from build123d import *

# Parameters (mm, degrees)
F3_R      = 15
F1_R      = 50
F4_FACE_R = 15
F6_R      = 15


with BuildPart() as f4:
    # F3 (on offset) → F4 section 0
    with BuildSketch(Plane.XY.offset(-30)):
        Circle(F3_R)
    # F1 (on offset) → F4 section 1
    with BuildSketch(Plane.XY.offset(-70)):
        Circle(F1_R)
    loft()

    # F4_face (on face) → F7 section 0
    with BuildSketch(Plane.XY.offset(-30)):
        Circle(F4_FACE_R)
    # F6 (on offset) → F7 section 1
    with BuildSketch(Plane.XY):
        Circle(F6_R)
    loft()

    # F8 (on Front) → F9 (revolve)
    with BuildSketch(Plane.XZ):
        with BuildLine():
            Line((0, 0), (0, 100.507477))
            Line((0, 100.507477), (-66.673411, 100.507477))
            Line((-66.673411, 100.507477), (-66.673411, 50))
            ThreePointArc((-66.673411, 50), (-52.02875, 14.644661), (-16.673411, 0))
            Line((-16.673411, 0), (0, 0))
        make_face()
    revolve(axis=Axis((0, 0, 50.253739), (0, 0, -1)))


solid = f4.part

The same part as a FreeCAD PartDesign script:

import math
import FreeCAD as App
import Part
import Sketcher
Q = App.Units.Quantity

doc = App.newDocument("Part")
params = doc.addObject("Spreadsheet::Sheet", "Params")
for row, (alias, value) in enumerate([
    ("sketch1_diameter", "30 mm"),
    ("sketch2_diameter", "100 mm"),
    ("sketch3_diameter", "30 mm"),
    ("sketch4_diameter", "30 mm"),
    ("sketch5_radius", "50 mm"),
    ("revolution_angle", "360 deg"),
], start=1):
    params.set(f"A{row}", alias)
    params.set(f"B{row}", "=" + value)
    params.setAlias(f"B{row}", alias)

body = doc.addObject("PartDesign::Body", "Body")

# Sketch on XY plane
sketch1 = doc.addObject("Sketcher::SketchObject", "Sketch")
body.addObject(sketch1)
sketch1.AttachmentSupport = (doc.XY_Plane, [""])
sketch1.MapMode = "FlatFace"
sketch1.AttachmentOffset = App.Placement(App.Vector(0, 0, -30), App.Rotation())
sketch1.addGeometry(Part.Circle(App.Vector(0, 0, 0), App.Vector(0, 0, 1), 15), False)
sketch1.addConstraint([
    Sketcher.Constraint("Coincident", 0, 3, -1, 1),
    Sketcher.Constraint("Diameter", 0, Q("30 mm")),
])
sketch1.setExpression("Constraints[1]", "Params.sketch1_diameter")

# Sketch on XY plane
sketch2 = doc.addObject("Sketcher::SketchObject", "Sketch001")
body.addObject(sketch2)
sketch2.AttachmentSupport = (doc.XY_Plane, [""])
sketch2.MapMode = "FlatFace"
sketch2.AttachmentOffset = App.Placement(App.Vector(0, 0, -70), App.Rotation())
sketch2.addGeometry(Part.Circle(App.Vector(0, 0, 0), App.Vector(0, 0, 1), 50), False)
sketch2.addConstraint([
    Sketcher.Constraint("Coincident", 0, 3, -1, 1),
    Sketcher.Constraint("Diameter", 0, Q("100 mm")),
])
sketch2.setExpression("Constraints[1]", "Params.sketch2_diameter")

additiveloft = doc.addObject("PartDesign::AdditiveLoft", "AdditiveLoft")
body.addObject(additiveloft)
additiveloft.Profile = sketch1
additiveloft.Sections = [sketch2]

# Sketch on XY plane
sketch3 = doc.addObject("Sketcher::SketchObject", "Sketch002")
body.addObject(sketch3)
sketch3.AttachmentSupport = (doc.XY_Plane, [""])
sketch3.MapMode = "FlatFace"
sketch3.AttachmentOffset = App.Placement(App.Vector(0, 0, -30), App.Rotation())
sketch3.addGeometry(Part.Circle(App.Vector(0, 0, 0), App.Vector(0, 0, 1), 15), False)
sketch3.addConstraint([
    Sketcher.Constraint("Coincident", 0, 3, -1, 1),
    Sketcher.Constraint("Diameter", 0, Q("30 mm")),
])
sketch3.setExpression("Constraints[1]", "Params.sketch3_diameter")

# Sketch on XY plane
sketch4 = doc.addObject("Sketcher::SketchObject", "Sketch003")
body.addObject(sketch4)
sketch4.AttachmentSupport = (doc.XY_Plane, [""])
sketch4.MapMode = "FlatFace"
sketch4.addGeometry(Part.Circle(App.Vector(0, 0, 0), App.Vector(0, 0, 1), 15), False)
sketch4.addConstraint([
    Sketcher.Constraint("Coincident", 0, 3, -1, 1),
    Sketcher.Constraint("Diameter", 0, Q("30 mm")),
])
sketch4.setExpression("Constraints[1]", "Params.sketch4_diameter")

additiveloft2 = doc.addObject("PartDesign::AdditiveLoft", "AdditiveLoft001")
body.addObject(additiveloft2)
additiveloft2.Profile = sketch3
additiveloft2.Sections = [sketch4]

# Sketch on XZ plane
sketch5 = doc.addObject("Sketcher::SketchObject", "Sketch004")
body.addObject(sketch5)
sketch5.AttachmentSupport = (doc.XZ_Plane, [""])
sketch5.MapMode = "FlatFace"
sketch5.addGeometry([
    Part.LineSegment(App.Vector(0, 0, 0), App.Vector(0, 101, 0)),  # 0
    Part.LineSegment(App.Vector(0, 101, 0), App.Vector(-67, 101, 0)),  # 1
    Part.LineSegment(App.Vector(-67, 101, 0), App.Vector(-67, 50, 0)),  # 2
    Part.ArcOfCircle(Part.Circle(App.Vector(-17, 50, 0), App.Vector(0, 0, 1), 50), math.radians(-180), math.radians(-90)),  # 3
    Part.LineSegment(App.Vector(-17, 0, 0), App.Vector(0, 0, 0)),  # 4
], False)
sketch5.addConstraint([
    Sketcher.Constraint("Coincident", 0, 2, 1, 1),
    Sketcher.Constraint("Coincident", 1, 2, 2, 1),
    Sketcher.Constraint("Tangent", 2, 2, 3, 1),
    Sketcher.Constraint("Tangent", 3, 2, 4, 1),
    Sketcher.Constraint("Coincident", 4, 2, 0, 1),
    Sketcher.Constraint("Vertical", 0),
    Sketcher.Constraint("Horizontal", 1),
    Sketcher.Constraint("Vertical", 2),
    Sketcher.Constraint("Horizontal", 4),
    Sketcher.Constraint("Coincident", 4, 2, -1, 1),
    Sketcher.Constraint("Radius", 3, Q("50 mm")),
    Sketcher.Constraint("DistanceX", 1, 2, 1, 1, Q("66.673411 mm")),
    Sketcher.Constraint("DistanceY", 0, 1, 0, 2, Q("100.507477 mm")),
])
sketch5.setExpression("Constraints[10]", "Params.sketch5_radius")
revolution = doc.addObject("PartDesign::Revolution", "Revolution")
body.addObject(revolution)
revolution.Profile = sketch5
revolution.ReferenceAxis = (sketch5, ["V_Axis"])
revolution.setExpression("Angle", "Params.revolution_angle")

doc.recompute()
